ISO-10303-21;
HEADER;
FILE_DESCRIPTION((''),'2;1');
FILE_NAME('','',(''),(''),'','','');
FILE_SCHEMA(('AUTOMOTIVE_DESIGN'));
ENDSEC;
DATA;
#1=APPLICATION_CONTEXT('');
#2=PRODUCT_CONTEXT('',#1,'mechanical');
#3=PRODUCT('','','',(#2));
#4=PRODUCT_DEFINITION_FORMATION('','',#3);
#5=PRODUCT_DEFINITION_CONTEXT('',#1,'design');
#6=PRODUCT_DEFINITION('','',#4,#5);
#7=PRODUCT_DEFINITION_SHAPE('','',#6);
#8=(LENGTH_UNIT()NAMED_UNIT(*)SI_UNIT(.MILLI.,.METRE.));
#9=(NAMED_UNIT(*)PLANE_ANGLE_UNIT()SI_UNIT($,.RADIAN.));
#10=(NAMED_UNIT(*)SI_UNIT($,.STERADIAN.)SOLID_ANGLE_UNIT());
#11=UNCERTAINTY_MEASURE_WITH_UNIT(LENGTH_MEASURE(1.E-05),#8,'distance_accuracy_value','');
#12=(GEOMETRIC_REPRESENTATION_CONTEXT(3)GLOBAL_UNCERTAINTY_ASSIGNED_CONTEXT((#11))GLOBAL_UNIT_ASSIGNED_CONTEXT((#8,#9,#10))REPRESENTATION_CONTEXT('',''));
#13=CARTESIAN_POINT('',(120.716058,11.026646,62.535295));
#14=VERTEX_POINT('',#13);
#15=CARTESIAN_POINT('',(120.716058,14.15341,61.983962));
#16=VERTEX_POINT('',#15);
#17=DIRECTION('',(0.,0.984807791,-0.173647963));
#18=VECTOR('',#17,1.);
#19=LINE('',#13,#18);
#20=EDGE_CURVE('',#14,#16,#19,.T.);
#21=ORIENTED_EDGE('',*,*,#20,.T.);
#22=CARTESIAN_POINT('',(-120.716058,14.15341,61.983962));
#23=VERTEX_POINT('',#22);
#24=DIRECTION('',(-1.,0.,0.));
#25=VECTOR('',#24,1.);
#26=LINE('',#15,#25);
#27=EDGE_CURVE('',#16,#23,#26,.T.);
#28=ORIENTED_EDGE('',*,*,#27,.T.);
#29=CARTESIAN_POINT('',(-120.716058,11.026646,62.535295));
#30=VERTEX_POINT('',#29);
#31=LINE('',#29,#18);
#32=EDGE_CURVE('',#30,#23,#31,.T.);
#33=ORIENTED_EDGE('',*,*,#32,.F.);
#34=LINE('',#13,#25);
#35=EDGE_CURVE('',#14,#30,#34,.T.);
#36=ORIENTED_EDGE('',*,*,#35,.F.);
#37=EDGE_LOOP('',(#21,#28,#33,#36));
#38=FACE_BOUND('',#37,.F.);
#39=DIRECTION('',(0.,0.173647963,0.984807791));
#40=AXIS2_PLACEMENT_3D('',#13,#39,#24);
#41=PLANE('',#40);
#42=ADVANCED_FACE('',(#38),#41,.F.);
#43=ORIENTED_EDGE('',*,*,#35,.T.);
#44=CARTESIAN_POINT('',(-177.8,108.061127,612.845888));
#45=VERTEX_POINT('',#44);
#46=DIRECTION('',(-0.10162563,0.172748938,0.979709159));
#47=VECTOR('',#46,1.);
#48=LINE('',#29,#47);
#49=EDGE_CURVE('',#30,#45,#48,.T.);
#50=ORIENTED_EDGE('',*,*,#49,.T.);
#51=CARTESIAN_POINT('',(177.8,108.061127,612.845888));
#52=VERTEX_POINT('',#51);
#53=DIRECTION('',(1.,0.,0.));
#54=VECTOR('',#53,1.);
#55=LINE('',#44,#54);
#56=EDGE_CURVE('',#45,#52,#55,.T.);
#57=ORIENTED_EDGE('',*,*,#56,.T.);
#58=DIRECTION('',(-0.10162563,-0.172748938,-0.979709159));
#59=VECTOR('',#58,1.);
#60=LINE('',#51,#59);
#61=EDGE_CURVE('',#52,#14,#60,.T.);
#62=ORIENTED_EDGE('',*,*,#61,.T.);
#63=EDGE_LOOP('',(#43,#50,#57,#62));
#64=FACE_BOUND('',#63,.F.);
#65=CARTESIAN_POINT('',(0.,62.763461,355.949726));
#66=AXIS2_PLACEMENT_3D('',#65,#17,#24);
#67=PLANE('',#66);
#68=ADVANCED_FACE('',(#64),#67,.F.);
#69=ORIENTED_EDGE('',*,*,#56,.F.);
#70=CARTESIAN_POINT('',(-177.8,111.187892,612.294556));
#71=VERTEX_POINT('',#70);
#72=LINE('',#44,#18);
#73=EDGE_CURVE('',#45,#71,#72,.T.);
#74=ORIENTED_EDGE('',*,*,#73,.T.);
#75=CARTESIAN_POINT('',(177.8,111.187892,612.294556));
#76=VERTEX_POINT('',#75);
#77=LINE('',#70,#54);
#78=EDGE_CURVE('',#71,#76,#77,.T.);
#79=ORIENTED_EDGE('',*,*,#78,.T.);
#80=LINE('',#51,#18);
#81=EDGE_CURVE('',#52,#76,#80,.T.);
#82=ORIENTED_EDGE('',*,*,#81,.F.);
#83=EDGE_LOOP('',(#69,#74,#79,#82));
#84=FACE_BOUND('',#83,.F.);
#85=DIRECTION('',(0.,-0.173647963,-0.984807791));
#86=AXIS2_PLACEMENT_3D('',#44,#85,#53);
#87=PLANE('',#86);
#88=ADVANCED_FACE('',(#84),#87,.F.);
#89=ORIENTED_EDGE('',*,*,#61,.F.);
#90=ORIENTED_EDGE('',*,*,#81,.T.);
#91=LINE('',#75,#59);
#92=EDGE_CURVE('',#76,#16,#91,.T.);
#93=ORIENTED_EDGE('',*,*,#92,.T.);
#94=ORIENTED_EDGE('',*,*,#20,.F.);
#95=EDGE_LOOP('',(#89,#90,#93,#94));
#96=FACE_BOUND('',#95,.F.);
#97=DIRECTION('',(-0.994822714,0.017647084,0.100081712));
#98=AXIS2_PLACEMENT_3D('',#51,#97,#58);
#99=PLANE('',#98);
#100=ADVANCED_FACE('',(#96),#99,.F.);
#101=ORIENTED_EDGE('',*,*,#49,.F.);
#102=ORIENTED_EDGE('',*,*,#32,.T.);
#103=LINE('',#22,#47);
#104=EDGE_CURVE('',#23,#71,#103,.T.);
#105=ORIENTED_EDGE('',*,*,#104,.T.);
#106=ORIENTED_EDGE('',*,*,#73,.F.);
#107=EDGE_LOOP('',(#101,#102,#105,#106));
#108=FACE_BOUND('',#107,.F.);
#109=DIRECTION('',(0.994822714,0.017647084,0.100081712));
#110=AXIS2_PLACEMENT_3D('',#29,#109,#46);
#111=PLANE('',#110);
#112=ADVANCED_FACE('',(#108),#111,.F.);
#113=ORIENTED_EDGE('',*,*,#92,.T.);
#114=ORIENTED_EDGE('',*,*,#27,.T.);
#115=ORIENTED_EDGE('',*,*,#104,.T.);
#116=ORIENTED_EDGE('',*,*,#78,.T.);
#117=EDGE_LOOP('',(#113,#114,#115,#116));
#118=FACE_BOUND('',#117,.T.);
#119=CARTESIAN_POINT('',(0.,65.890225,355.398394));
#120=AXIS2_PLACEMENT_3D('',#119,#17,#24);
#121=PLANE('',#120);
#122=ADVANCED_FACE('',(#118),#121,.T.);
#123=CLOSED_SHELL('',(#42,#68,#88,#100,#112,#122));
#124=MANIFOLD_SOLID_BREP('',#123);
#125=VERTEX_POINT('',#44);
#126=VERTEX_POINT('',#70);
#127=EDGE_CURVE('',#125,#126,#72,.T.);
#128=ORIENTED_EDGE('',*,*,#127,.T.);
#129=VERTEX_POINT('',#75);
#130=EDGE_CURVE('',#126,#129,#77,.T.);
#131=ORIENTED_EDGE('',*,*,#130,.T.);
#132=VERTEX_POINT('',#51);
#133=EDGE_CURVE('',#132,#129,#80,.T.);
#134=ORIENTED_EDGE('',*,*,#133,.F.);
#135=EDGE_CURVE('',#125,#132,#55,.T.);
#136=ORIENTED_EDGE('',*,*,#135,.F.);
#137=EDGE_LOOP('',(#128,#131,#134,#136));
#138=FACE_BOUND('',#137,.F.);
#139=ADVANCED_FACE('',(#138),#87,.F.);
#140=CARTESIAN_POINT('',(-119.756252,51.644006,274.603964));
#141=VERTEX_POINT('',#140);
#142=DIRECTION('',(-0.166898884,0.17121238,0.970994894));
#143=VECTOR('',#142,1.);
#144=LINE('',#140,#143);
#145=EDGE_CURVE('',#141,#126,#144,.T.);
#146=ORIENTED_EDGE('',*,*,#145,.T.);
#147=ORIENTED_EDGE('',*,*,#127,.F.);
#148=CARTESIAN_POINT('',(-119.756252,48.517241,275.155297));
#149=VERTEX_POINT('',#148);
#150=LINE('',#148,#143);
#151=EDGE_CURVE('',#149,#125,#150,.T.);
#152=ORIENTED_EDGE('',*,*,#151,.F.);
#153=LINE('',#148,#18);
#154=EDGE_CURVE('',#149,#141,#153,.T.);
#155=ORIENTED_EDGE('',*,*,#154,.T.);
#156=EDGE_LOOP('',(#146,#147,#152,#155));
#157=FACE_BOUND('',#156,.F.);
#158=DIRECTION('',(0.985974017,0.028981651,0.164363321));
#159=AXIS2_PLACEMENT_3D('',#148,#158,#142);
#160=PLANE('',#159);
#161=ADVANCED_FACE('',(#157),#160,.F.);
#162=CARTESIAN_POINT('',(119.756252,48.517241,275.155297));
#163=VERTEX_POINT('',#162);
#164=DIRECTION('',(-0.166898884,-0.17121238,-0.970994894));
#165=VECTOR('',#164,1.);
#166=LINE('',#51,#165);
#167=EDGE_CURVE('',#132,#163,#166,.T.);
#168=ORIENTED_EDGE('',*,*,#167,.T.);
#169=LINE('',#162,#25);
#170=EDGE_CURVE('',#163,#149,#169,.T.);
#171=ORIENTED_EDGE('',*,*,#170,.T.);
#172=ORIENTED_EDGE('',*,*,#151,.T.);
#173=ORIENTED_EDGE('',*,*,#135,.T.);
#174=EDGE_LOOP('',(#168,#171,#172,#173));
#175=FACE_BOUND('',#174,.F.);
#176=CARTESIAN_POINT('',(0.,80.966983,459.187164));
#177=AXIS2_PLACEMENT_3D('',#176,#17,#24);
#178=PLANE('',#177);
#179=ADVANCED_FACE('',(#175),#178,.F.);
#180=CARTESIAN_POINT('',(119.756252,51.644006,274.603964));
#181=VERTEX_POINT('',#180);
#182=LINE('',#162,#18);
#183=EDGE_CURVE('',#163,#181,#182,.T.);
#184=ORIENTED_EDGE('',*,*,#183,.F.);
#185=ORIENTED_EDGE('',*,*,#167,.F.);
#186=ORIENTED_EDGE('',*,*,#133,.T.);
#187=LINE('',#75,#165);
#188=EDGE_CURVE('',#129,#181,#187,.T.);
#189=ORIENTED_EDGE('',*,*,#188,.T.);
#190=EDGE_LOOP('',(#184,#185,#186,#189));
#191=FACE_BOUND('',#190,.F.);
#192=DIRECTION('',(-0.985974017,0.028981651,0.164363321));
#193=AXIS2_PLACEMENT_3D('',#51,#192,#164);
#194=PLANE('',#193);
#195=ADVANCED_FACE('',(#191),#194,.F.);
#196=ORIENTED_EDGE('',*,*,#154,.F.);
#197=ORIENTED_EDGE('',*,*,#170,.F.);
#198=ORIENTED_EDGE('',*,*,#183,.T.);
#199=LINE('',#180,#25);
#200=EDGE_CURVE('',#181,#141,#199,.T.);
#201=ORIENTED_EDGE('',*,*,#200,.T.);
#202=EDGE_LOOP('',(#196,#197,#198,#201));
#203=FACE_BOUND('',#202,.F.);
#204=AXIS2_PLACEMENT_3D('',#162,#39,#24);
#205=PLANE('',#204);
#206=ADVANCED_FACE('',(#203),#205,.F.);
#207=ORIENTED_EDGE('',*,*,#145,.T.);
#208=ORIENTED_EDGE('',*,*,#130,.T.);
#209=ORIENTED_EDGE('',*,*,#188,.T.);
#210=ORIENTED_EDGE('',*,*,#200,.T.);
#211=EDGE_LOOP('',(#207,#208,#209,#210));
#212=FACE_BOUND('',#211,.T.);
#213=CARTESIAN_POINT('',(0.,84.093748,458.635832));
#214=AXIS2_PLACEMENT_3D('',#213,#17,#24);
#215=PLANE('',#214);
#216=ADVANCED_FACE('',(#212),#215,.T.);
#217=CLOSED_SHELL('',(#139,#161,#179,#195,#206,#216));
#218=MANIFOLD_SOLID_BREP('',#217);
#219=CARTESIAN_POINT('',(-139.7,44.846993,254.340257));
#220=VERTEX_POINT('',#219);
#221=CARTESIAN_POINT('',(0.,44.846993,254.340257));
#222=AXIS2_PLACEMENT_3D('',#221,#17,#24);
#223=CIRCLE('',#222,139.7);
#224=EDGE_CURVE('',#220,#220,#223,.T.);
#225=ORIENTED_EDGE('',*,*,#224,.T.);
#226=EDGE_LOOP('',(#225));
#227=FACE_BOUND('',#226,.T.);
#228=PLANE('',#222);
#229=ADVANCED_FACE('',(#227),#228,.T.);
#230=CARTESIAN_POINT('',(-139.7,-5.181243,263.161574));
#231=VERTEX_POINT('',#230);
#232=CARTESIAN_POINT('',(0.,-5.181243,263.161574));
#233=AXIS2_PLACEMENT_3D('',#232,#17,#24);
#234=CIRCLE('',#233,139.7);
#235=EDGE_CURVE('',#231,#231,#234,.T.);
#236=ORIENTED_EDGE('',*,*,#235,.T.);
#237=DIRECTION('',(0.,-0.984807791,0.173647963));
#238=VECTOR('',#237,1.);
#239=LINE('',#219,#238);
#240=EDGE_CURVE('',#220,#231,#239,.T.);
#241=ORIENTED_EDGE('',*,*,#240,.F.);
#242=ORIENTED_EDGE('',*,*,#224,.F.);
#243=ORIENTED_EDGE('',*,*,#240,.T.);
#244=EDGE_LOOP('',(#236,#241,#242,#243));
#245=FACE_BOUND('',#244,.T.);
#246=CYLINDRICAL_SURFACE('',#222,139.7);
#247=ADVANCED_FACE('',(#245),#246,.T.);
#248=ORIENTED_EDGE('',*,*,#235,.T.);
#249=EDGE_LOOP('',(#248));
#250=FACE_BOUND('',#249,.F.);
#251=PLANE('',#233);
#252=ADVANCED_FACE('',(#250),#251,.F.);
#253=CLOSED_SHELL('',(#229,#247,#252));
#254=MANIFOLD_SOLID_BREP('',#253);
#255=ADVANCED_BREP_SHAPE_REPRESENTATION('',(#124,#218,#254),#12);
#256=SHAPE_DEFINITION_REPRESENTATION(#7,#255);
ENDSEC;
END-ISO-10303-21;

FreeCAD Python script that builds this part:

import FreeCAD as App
import Part
import Sketcher
from FreeCAD import Vector
Q = App.Units.Quantity

doc = App.newDocument("Part")
body = doc.addObject("PartDesign::Body", "Body")

sketch1 = body.newObject("Sketcher::SketchObject", "Sketch")
sketch1.Placement = App.Placement(Vector(0, 0, 0), App.Rotation(Vector(-1, 0, 0), Vector(0, 0.173647963, 0.984807791), Vector(0, 0.984807791, -0.173647963), "ZXY"))
sketch1.addGeometry([
    Part.LineSegment(Vector(121, 64, 0), Vector(178, 622, 0)),
    Part.LineSegment(Vector(178, 622, 0), Vector(-178, 622, 0)),
    Part.LineSegment(Vector(-178, 622, 0), Vector(-121, 64, 0)),
    Part.LineSegment(Vector(-121, 64, 0), Vector(121, 64, 0)),
], False)
sketch1.addConstraint([
    Sketcher.Constraint("Coincident", 0, 2, 1, 1),
    Sketcher.Constraint("Coincident", 1, 2, 2, 1),
    Sketcher.Constraint("Coincident", 2, 2, 3, 1),
    Sketcher.Constraint("Coincident", 3, 2, 0, 1),
    Sketcher.Constraint("Horizontal", 1),
    Sketcher.Constraint("Horizontal", 3),
    Sketcher.Constraint("Equal", 0, 2),
    Sketcher.Constraint("DistanceX", 1, 2, 1, 1, Q("14 in")),
    Sketcher.Constraint("DistanceX", -1, 1, 0, 2, Q("7 in")),
    Sketcher.Constraint("DistanceY", 2, 2, 1, 2, Q("22 in")),
    Sketcher.Constraint("DistanceY", -1, 1, 0, 2, Q("24.5 in")),
    Sketcher.Constraint("DistanceX", 3, 1, 3, 2, 241.432116),
])
pad1 = body.newObject("PartDesign::Pad", "Pad")
pad1.Profile = sketch1
pad1.Length = Q("0.125 in")
body2 = doc.addObject("PartDesign::Body", "Body001")

sketch2 = body2.newObject("Sketcher::SketchObject", "Sketch001")
sketch2.Placement = App.Placement(Vector(0, 0, 0), App.Rotation(Vector(-1, 0, 0), Vector(0, 0.173647963, 0.984807791), Vector(0, 0.984807791, -0.173647963), "ZXY"))
sketch2.addGeometry([
    Part.LineSegment(Vector(120, 279, 0), Vector(178, 622, 0)),
    Part.LineSegment(Vector(178, 622, 0), Vector(-178, 622, 0)),
    Part.LineSegment(Vector(-178, 622, 0), Vector(-120, 279, 0)),
    Part.LineSegment(Vector(-120, 279, 0), Vector(120, 279, 0)),
], False)
sketch2.addConstraint([
    Sketcher.Constraint("Coincident", 0, 2, 1, 1),
    Sketcher.Constraint("Coincident", 1, 2, 2, 1),
    Sketcher.Constraint("Coincident", 2, 2, 3, 1),
    Sketcher.Constraint("Coincident", 3, 2, 0, 1),
    Sketcher.Constraint("Horizontal", 1),
    Sketcher.Constraint("Horizontal", 3),
    Sketcher.Constraint("Equal", 0, 2),
    Sketcher.Constraint("DistanceX", 1, 2, 1, 1, Q("14 in")),
    Sketcher.Constraint("DistanceX", -1, 1, 0, 2, Q("7 in")),
    Sketcher.Constraint("DistanceY", -1, 1, 2, 2, Q("11 in")),
    Sketcher.Constraint("DistanceY", -1, 1, 0, 2, Q("24.5 in")),
    Sketcher.Constraint("DistanceX", 3, 1, 3, 2, 239.512504),
])
pad2 = body2.newObject("PartDesign::Pad", "Pad001")
pad2.Profile = sketch2
pad2.Length = Q("0.125 in")
body3 = doc.addObject("PartDesign::Body", "Body002")

sketch3 = body3.newObject("Sketcher::SketchObject", "Sketch002")
sketch3.Placement = App.Placement(Vector(0, 0, 0), App.Rotation(Vector(-1, 0, 0), Vector(0, 0.173647963, 0.984807791), Vector(0, 0.984807791, -0.173647963), "ZXY"))
sketch3.addGeometry(Part.Circle(Vector(0, 258, 0), Vector(0, 0, 1), 140), False)
sketch3.addConstraint([
    Sketcher.Constraint("PointOnObject", 0, 3, -2),
    Sketcher.Constraint("Diameter", 0, Q("11 in")),
    Sketcher.Constraint("DistanceY", -1, 1, 0, 3, 258.263856),
])
pad3 = body3.newObject("PartDesign::Pad", "Pad002")
pad3.Profile = sketch3
pad3.Length = Q("2 in")
pad3.Reversed = True

doc.recompute()
